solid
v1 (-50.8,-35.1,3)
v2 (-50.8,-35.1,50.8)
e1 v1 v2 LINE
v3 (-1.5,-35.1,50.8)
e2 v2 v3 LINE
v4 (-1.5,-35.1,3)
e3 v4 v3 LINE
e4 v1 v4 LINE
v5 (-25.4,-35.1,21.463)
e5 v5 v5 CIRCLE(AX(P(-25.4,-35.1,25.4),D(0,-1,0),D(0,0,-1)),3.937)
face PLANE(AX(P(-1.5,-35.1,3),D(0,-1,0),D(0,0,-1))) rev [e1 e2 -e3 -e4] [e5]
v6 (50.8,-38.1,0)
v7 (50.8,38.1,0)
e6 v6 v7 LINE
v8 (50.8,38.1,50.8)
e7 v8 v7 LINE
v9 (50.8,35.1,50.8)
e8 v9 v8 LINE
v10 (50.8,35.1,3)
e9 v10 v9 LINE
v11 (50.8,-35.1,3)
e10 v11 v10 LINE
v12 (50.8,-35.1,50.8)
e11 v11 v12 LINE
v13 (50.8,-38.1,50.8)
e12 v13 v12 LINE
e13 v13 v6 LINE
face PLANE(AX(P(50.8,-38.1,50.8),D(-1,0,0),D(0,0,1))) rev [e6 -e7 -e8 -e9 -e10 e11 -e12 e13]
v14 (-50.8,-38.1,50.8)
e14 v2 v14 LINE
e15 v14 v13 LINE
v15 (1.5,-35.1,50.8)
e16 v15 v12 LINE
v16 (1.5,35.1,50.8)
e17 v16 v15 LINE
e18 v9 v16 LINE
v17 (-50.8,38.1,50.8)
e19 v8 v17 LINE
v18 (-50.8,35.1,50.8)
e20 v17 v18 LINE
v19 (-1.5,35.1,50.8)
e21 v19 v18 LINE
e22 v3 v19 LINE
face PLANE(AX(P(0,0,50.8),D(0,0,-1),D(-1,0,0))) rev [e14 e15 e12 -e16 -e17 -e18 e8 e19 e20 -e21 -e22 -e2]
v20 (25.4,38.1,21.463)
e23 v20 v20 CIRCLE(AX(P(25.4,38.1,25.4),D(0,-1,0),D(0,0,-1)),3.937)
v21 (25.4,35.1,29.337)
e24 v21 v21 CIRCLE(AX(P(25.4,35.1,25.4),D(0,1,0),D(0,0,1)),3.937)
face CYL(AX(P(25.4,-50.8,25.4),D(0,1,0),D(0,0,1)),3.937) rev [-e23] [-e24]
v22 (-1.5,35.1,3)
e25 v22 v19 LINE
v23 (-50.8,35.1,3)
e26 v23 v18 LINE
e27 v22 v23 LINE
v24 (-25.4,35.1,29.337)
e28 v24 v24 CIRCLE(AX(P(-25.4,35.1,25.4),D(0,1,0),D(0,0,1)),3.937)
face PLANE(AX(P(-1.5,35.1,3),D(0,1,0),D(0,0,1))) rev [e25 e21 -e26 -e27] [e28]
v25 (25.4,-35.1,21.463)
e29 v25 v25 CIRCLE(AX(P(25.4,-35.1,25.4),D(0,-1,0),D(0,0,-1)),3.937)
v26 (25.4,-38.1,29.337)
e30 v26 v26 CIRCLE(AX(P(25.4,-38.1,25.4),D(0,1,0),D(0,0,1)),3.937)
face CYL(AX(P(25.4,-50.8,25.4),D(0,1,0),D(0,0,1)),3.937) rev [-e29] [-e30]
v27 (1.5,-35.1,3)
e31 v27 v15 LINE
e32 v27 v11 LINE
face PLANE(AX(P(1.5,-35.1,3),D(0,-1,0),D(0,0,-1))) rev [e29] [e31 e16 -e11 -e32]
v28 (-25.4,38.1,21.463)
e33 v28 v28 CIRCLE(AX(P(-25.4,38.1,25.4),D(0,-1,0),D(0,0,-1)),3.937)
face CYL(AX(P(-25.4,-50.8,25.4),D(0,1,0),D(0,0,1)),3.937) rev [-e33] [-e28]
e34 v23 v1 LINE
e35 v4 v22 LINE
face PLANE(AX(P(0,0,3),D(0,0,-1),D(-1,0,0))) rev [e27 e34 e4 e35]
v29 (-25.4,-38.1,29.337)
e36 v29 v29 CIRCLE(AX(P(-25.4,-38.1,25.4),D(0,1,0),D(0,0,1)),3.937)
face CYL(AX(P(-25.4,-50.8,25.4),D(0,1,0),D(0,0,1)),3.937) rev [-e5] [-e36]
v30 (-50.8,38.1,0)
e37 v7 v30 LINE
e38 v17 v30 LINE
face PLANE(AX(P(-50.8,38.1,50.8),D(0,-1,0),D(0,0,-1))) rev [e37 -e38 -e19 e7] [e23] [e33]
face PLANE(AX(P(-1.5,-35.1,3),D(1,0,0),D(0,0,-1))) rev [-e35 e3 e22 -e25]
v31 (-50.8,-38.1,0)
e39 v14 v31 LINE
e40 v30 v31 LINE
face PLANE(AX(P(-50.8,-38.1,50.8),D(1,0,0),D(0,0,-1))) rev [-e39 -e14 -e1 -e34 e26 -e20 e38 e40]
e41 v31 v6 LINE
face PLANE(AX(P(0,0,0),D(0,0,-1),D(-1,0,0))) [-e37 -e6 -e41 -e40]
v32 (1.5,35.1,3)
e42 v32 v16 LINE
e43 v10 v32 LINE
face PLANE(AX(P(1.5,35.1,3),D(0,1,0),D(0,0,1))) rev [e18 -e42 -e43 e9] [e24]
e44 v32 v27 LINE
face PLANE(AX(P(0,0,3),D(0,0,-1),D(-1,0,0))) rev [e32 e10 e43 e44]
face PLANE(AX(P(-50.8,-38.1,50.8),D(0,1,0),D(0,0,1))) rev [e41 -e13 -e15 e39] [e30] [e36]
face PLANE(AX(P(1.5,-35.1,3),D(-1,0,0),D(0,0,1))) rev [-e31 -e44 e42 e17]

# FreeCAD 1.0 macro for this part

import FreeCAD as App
import Part
import Sketcher
Q = App.Units.Quantity


def add_polygon(sketch, points):
    """Adds a closed chain of lines whose ends are joined by coincident constraints."""
    first, n = sketch.GeometryCount, len(points)
    for a, b in zip(points, points[1:] + points[:1]):
        sketch.addGeometry(Part.LineSegment(App.Vector(*a, 0), App.Vector(*b, 0)), False)
    for i in range(n):
        sketch.addConstraint(Sketcher.Constraint("Coincident", first + i, 2, first + (i + 1) % n, 1))

doc = App.newDocument("Part")
body = doc.addObject("PartDesign::Body", "Body")

# Sketch on XY plane
sketch1 = body.newObject("Sketcher::SketchObject", "Sketch")
sketch1.AttachmentSupport = (doc.getObject("XY_Plane"), [""])
sketch1.MapMode = "FlatFace"
add_polygon(sketch1, [(-51, 38), (-51, -38), (51, -38), (51, 38)])  # lines 0-3
sketch1.addConstraint([
    Sketcher.Constraint("Vertical", 0),
    Sketcher.Constraint("Horizontal", 1),
    Sketcher.Constraint("Vertical", 2),
    Sketcher.Constraint("Horizontal", 3),
    Sketcher.Constraint("Symmetric", 0, 2, 2, 2, -1, 1),
    Sketcher.Constraint("DistanceX", 1, 1, 1, 2, Q("4 in")),
    Sketcher.Constraint("DistanceY", 0, 2, 0, 1, Q("3 in")),
])
pad1 = body.newObject("PartDesign::Pad", "Pad")
pad1.Profile = sketch1
pad1.Length = Q("2 in")

# Sketch on XY plane
sketch2 = body.newObject("Sketcher::SketchObject", "Sketch001")
sketch2.AttachmentSupport = (doc.getObject("XY_Plane"), [""])
sketch2.MapMode = "FlatFace"
sketch2.AttachmentOffset = App.Placement(App.Vector(0, 0, 2 * 25.4), App.Rotation())
add_polygon(sketch2, [(-51, 35), (-51, -35), (-2, -35), (-2, 35)])  # lines 0-3
add_polygon(sketch2, [(2, 35), (2, -35), (51, -35), (51, 35)])  # lines 4-7
sketch2.addConstraint([
    Sketcher.Constraint("Vertical", 0),
    Sketcher.Constraint("Horizontal", 1),
    Sketcher.Constraint("Vertical", 2),
    Sketcher.Constraint("Horizontal", 3),
    Sketcher.Constraint("Vertical", 4),
    Sketcher.Constraint("Horizontal", 5),
    Sketcher.Constraint("Vertical", 6),
    Sketcher.Constraint("Horizontal", 7),
    Sketcher.Constraint("Symmetric", 2, 2, 4, 2, -1, 1),
    Sketcher.Constraint("Symmetric", 0, 2, 6, 2, -1, 1),
    Sketcher.Constraint("Horizontal", 1, 2, 4, 2),
    Sketcher.Constraint("DistanceX", 0, 2, -1, 1, Q("2 in")),
    Sketcher.Constraint("DistanceX", 1, 1, 1, 2, Q("49.3 mm")),
    Sketcher.Constraint("DistanceY", 0, 2, 0, 1, Q("70.2 mm")),
])
pocket1 = body.newObject("PartDesign::Pocket", "Pocket")
pocket1.Profile = sketch2
pocket1.Length = 47.8

# Sketch on XZ plane
sketch3 = body.newObject("Sketcher::SketchObject", "Sketch002")
sketch3.AttachmentSupport = (doc.getObject("XZ_Plane"), [""])
sketch3.MapMode = "FlatFace"
sketch3.addGeometry([
    Part.Circle(App.Vector(25.4, 25.4, 0), App.Vector(0, 0, 1), 3.9),
    Part.Circle(App.Vector(-25.4, 25.4, 0), App.Vector(0, 0, 1), 3.9),
], False)
sketch3.addConstraint([
    Sketcher.Constraint("Equal", 0, 1),
    Sketcher.Constraint("Symmetric", 0, 3, 1, 3, -2),
    Sketcher.Constraint("Diameter", 0, Q("0.31 in")),
    Sketcher.Constraint("DistanceX", -1, 1, 0, 3, Q("1 in")),
    Sketcher.Constraint("DistanceY", -1, 1, 0, 3, Q("1 in")),
])
pocket2 = body.newObject("PartDesign::Pocket", "Pocket001")
pocket2.Profile = sketch3
pocket2.Length = Q("4 in")
pocket2.Midplane = True

doc.recompute()
